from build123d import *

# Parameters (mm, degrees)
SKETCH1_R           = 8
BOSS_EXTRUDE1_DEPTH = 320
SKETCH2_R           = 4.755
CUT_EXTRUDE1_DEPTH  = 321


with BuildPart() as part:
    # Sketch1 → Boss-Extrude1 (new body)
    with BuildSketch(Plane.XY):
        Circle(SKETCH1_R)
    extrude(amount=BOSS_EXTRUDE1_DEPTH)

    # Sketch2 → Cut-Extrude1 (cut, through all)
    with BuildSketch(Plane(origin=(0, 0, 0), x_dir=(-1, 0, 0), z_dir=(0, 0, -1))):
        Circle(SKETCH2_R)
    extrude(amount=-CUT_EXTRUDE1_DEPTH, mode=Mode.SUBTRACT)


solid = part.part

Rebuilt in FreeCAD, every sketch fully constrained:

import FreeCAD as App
import Part
import Sketcher

V = App.Vector
Q = App.Units.Quantity

doc = App.newDocument("Part")
body = doc.addObject("PartDesign::Body", "Body")

# Sketch on XY plane
sketch1 = body.newObject("Sketcher::SketchObject", "Sketch")
sketch1.AttachmentSupport = (doc.getObject("XY_Plane"), [""])
sketch1.MapMode = "FlatFace"
sketch1.addGeometry(Part.Circle(V(0, 0, 0), V(0, 0, 1), 8), False)
sketch1.addConstraint([
    Sketcher.Constraint("Coincident", 0, 3, -1, 1),
    Sketcher.Constraint("Diameter", 0, Q("16 mm")),
])
pad1 = body.newObject("PartDesign::Pad", "Pad")
pad1.Profile = sketch1
pad1.Length = 320

# Sketch on XY plane
sketch2 = body.newObject("Sketcher::SketchObject", "Sketch001")
sketch2.AttachmentSupport = (doc.getObject("XY_Plane"), [""])
sketch2.MapMode = "FlatFace"
sketch2.addGeometry(Part.Circle(V(0, 0, 0), V(0, 0, 1), 4.8), False)
sketch2.addConstraint([
    Sketcher.Constraint("Coincident", 0, 3, -1, 1),
    Sketcher.Constraint("Diameter", 0, Q("9.51 mm")),
])
pocket1 = body.newObject("PartDesign::Pocket", "Pocket")
pocket1.Profile = sketch2
pocket1.Type = "ThroughAll"
pocket1.Reversed = True

doc.recompute()
